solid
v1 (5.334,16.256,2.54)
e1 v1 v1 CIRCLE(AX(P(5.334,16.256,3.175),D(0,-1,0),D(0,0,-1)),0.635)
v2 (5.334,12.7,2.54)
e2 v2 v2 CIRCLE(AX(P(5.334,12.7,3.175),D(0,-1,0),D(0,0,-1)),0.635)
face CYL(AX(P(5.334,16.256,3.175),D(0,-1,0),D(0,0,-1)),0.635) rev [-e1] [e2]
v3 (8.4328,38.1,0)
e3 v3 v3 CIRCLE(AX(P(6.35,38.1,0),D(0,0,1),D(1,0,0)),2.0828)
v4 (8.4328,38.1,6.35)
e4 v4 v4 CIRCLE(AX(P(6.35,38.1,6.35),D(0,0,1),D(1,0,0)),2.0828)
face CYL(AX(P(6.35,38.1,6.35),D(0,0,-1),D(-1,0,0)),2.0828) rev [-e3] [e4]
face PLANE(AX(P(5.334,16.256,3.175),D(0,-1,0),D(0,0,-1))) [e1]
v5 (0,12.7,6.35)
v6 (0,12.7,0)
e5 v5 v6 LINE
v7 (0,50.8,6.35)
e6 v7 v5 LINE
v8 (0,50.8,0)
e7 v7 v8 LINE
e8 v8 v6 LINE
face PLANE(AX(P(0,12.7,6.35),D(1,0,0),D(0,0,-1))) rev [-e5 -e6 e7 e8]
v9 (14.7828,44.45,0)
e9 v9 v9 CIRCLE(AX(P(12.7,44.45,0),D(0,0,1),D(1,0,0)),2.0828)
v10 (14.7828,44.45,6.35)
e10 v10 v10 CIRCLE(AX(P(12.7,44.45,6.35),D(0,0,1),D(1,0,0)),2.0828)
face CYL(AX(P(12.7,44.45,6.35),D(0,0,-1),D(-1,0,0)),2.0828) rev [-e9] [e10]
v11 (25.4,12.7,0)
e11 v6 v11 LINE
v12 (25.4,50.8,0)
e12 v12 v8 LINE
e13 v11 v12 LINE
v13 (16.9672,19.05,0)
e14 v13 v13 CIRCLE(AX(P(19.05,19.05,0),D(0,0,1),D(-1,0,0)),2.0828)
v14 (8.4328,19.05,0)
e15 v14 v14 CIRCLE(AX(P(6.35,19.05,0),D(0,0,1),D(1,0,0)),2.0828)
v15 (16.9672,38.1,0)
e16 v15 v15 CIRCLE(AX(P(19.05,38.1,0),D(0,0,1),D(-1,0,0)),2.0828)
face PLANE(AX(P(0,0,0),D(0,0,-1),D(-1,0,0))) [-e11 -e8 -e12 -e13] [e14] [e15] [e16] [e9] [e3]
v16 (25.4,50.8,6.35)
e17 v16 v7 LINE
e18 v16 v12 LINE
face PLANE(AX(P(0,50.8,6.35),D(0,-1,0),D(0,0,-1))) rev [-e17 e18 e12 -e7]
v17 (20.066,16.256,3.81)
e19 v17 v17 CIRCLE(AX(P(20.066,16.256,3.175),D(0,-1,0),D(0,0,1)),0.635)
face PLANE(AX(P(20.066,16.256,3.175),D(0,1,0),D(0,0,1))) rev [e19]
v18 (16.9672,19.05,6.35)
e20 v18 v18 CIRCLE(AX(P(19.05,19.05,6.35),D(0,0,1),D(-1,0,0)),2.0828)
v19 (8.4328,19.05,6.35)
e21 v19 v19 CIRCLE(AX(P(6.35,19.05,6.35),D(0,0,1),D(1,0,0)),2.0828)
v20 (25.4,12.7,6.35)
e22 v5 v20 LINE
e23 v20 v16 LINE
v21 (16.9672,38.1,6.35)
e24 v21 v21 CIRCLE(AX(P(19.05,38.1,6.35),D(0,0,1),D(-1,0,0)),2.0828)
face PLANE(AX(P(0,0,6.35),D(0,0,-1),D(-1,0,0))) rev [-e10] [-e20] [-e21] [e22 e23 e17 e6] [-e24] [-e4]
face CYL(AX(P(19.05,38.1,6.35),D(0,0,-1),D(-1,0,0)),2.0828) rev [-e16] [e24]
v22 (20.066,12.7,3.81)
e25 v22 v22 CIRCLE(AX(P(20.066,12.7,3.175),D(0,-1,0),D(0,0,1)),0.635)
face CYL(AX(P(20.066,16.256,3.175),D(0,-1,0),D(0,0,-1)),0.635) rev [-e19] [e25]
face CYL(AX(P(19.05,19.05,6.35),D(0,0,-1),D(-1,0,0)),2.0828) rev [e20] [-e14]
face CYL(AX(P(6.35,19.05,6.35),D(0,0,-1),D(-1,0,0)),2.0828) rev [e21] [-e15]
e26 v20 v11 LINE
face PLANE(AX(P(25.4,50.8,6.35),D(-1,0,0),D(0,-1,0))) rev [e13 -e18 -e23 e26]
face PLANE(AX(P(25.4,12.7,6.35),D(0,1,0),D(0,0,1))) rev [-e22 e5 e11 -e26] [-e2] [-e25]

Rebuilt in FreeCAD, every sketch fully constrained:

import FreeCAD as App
import Part
import Sketcher
from FreeCAD import Vector
Q = App.Units.Quantity


def add_polygon(sketch, points):
    """Adds a closed chain of lines whose ends are joined by coincident constraints."""
    first, n = sketch.GeometryCount, len(points)
    for a, b in zip(points, points[1:] + points[:1]):
        sketch.addGeometry(Part.LineSegment(App.Vector(*a, 0), App.Vector(*b, 0)), False)
    for i in range(n):
        sketch.addConstraint(Sketcher.Constraint("Coincident", first + i, 2, first + (i + 1) % n, 1))

doc = App.newDocument("Part")
body = doc.addObject("PartDesign::Body", "Body")

sketch1 = body.newObject("Sketcher::SketchObject", "Sketch")
sketch1.AttachmentSupport = (doc.getObject("XY_Plane"), [""])
sketch1.MapMode = "FlatFace"
add_polygon(sketch1, [(0, 50.8), (0, 12.7), (25.4, 12.7), (25.4, 50.8)])
sketch1.addGeometry(Part.Circle(Vector(6.35, 19.05, 0), Vector(0, 0, 1), 2.0828), False)
sketch1.addGeometry(Part.Circle(Vector(19.05, 19.05, 0), Vector(0, 0, 1), 2.0828), False)
sketch1.addGeometry(Part.Circle(Vector(6.35, 38.1, 0), Vector(0, 0, 1), 2.0828), False)
sketch1.addGeometry(Part.Circle(Vector(19.05, 38.1, 0), Vector(0, 0, 1), 2.0828), False)
sketch1.addGeometry(Part.Circle(Vector(12.7, 44.45, 0), Vector(0, 0, 1), 2.0828), False)
sketch1.addConstraint(Sketcher.Constraint("Vertical", 0))
sketch1.addConstraint(Sketcher.Constraint("Horizontal", 1))
sketch1.addConstraint(Sketcher.Constraint("Vertical", 2))
sketch1.addConstraint(Sketcher.Constraint("Horizontal", 3))
sketch1.addConstraint(Sketcher.Constraint("Equal", 4, 5))
sketch1.addConstraint(Sketcher.Constraint("Equal", 5, 6))
sketch1.addConstraint(Sketcher.Constraint("Equal", 6, 7))
sketch1.addConstraint(Sketcher.Constraint("Equal", 7, 8))
sketch1.addConstraint(Sketcher.Constraint("PointOnObject", 0, 2, -2))
sketch1.addConstraint(Sketcher.Constraint("Horizontal", 4, 3, 5, 3))
sketch1.addConstraint(Sketcher.Constraint("Horizontal", 6, 3, 7, 3))
sketch1.addConstraint(Sketcher.Constraint("Vertical", 4, 3, 6, 3))
sketch1.addConstraint(Sketcher.Constraint("Vertical", 5, 3, 7, 3))
sketch1.addConstraint(Sketcher.Constraint("DistanceX", 1, 1, 1, 2, Q("1 in")))
sketch1.addConstraint(Sketcher.Constraint("Diameter", 4, Q("0.164 in")))
sketch1.addConstraint(Sketcher.Constraint("DistanceY", 0, 2, 0, 1, Q("1.5 in")))
sketch1.addConstraint(Sketcher.Constraint("DistanceY", -1, 1, 2, 2, Q("2 in")))
sketch1.addConstraint(Sketcher.Constraint("DistanceY", 4, 3, 8, 3, Q("1 in")))
sketch1.addConstraint(Sketcher.Constraint("DistanceY", 0, 2, 6, 3, Q("1 in")))
sketch1.addConstraint(Sketcher.Constraint("DistanceX", -1, 1, 8, 3, Q("0.5 in")))
sketch1.addConstraint(Sketcher.Constraint("DistanceX", 4, 3, 5, 3, Q("0.5 in")))
sketch1.addConstraint(Sketcher.Constraint("DistanceX", -1, 1, 4, 3, Q("0.25 in")))
sketch1.addConstraint(Sketcher.Constraint("DistanceY", -1, 1, 4, 3, Q("0.75 in")))
pad1 = body.newObject("PartDesign::Pad", "Pad")
pad1.Profile = sketch1
pad1.Length = Q("0.25 in")

sketch2 = body.newObject("Sketcher::SketchObject", "Sketch001")
sketch2.AttachmentSupport = (doc.getObject("XZ_Plane"), [""])
sketch2.MapMode = "FlatFace"
sketch2.AttachmentOffset = App.Placement(Vector(0, 0, -0.5 * 25.4), App.Rotation())
sketch2.addGeometry(Part.Circle(Vector(5.334, 3.175, 0), Vector(0, 0, 1), 0.635), False)
sketch2.addGeometry(Part.Circle(Vector(20.066, 3.175, 0), Vector(0, 0, 1), 0.635), False)
sketch2.addConstraint(Sketcher.Constraint("Equal", 0, 1))
sketch2.addConstraint(Sketcher.Constraint("Horizontal", 0, 3, 1, 3))
sketch2.addConstraint(Sketcher.Constraint("Diameter", 0, Q("0.05 in")))
sketch2.addConstraint(Sketcher.Constraint("DistanceX", -1, 1, 0, 3, Q("0.21 in")))
sketch2.addConstraint(Sketcher.Constraint("DistanceX", -1, 1, 1, 3, Q("0.79 in")))
sketch2.addConstraint(Sketcher.Constraint("DistanceY", -1, 1, 0, 3, Q("0.125 in")))
pocket1 = body.newObject("PartDesign::Pocket", "Pocket")
pocket1.Profile = sketch2
pocket1.Length = Q("0.14 in")

doc.recompute()
